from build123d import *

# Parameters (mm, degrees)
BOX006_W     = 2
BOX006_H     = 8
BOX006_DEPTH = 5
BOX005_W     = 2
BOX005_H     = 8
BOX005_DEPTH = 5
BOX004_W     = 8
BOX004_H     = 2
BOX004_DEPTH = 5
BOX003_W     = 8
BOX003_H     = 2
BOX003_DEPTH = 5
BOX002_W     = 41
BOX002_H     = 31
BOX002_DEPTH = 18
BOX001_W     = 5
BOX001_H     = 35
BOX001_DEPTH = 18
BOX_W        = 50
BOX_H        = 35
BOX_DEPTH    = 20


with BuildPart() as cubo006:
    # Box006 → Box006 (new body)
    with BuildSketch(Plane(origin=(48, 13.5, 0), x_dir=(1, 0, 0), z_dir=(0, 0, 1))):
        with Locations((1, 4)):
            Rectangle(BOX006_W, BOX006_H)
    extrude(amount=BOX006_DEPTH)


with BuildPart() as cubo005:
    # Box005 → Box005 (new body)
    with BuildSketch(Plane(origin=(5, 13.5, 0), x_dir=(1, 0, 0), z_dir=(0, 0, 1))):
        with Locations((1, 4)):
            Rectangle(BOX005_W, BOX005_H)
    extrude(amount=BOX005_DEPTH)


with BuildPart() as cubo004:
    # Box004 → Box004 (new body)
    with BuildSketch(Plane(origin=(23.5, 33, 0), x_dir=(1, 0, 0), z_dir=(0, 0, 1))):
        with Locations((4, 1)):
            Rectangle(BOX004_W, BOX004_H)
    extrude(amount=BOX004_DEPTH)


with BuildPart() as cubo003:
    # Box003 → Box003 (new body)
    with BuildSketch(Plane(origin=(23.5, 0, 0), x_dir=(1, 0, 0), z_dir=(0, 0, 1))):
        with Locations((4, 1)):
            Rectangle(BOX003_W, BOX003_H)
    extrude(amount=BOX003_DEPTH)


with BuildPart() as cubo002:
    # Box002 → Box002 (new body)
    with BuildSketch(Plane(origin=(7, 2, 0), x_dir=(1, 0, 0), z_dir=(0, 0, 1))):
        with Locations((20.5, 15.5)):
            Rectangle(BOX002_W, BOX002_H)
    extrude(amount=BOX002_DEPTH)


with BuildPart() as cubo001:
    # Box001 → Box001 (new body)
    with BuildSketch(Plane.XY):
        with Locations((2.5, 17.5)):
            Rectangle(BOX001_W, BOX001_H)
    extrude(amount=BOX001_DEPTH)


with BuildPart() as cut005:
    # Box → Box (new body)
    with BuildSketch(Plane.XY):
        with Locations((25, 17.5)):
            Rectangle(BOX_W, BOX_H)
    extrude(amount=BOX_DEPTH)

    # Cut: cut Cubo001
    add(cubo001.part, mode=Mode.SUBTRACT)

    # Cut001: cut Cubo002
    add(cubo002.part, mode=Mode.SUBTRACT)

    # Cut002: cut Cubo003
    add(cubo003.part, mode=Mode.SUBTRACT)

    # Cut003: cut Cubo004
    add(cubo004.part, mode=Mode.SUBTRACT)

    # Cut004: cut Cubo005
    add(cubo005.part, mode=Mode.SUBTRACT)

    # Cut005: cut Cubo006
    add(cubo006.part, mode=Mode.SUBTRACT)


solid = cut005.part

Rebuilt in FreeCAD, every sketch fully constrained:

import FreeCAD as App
import Part
import Sketcher
from FreeCAD import Vector
Q = App.Units.Quantity


def add_polygon(sketch, points):
    """Adds a closed chain of lines whose ends are joined by coincident constraints."""
    first, n = sketch.GeometryCount, len(points)
    for a, b in zip(points, points[1:] + points[:1]):
        sketch.addGeometry(Part.LineSegment(App.Vector(*a, 0), App.Vector(*b, 0)), False)
    for i in range(n):
        sketch.addConstraint(Sketcher.Constraint("Coincident", first + i, 2, first + (i + 1) % n, 1))

doc = App.newDocument("Part")
body = doc.addObject("PartDesign::Body", "Body")

# Sketch on XY plane
sketch1 = body.newObject("Sketcher::SketchObject", "Sketch")
sketch1.AttachmentSupport = (doc.getObject("XY_Plane"), [""])
sketch1.MapMode = "FlatFace"
add_polygon(sketch1, [(48, 21.5), (48, 13.5), (50, 13.5), (50, 21.5)])  # lines 0-3
sketch1.addConstraint(Sketcher.Constraint("Vertical", 0))
sketch1.addConstraint(Sketcher.Constraint("Horizontal", 1))
sketch1.addConstraint(Sketcher.Constraint("Vertical", 2))
sketch1.addConstraint(Sketcher.Constraint("Horizontal", 3))
sketch1.addConstraint(Sketcher.Constraint("DistanceX", 1, 1, 1, 2, Q("2 mm")))
sketch1.addConstraint(Sketcher.Constraint("DistanceY", 0, 2, 0, 1, Q("8 mm")))
sketch1.addConstraint(Sketcher.Constraint("DistanceX", -1, 1, 0, 2, Q("48 mm")))
sketch1.addConstraint(Sketcher.Constraint("DistanceY", -1, 1, 0, 2, Q("13.5 mm")))
pad1 = body.newObject("PartDesign::Pad", "Pad")
pad1.Profile = sketch1
pad1.Length = 5
body2 = doc.addObject("PartDesign::Body", "Body001")

# Sketch on XY plane
sketch2 = body2.newObject("Sketcher::SketchObject", "Sketch001")
sketch2.AttachmentSupport = (doc.getObject("XY_Plane001"), [""])
sketch2.MapMode = "FlatFace"
add_polygon(sketch2, [(5, 21.5), (5, 13.5), (7, 13.5), (7, 21.5)])  # lines 0-3
sketch2.addConstraint(Sketcher.Constraint("Vertical", 0))
sketch2.addConstraint(Sketcher.Constraint("Horizontal", 1))
sketch2.addConstraint(Sketcher.Constraint("Vertical", 2))
sketch2.addConstraint(Sketcher.Constraint("Horizontal", 3))
sketch2.addConstraint(Sketcher.Constraint("DistanceX", 1, 1, 1, 2, Q("2 mm")))
sketch2.addConstraint(Sketcher.Constraint("DistanceY", 0, 2, 0, 1, Q("8 mm")))
sketch2.addConstraint(Sketcher.Constraint("DistanceX", -1, 1, 0, 2, Q("5 mm")))
sketch2.addConstraint(Sketcher.Constraint("DistanceY", -1, 1, 0, 2, Q("13.5 mm")))
pad2 = body2.newObject("PartDesign::Pad", "Pad001")
pad2.Profile = sketch2
pad2.Length = 5
body3 = doc.addObject("PartDesign::Body", "Body002")

# Sketch on XY plane
sketch3 = body3.newObject("Sketcher::SketchObject", "Sketch002")
sketch3.AttachmentSupport = (doc.getObject("XY_Plane002"), [""])
sketch3.MapMode = "FlatFace"
add_polygon(sketch3, [(23.5, 35), (23.5, 33), (31.5, 33), (31.5, 35)])  # lines 0-3
sketch3.addConstraint(Sketcher.Constraint("Vertical", 0))
sketch3.addConstraint(Sketcher.Constraint("Horizontal", 1))
sketch3.addConstraint(Sketcher.Constraint("Vertical", 2))
sketch3.addConstraint(Sketcher.Constraint("Horizontal", 3))
sketch3.addConstraint(Sketcher.Constraint("DistanceX", 1, 1, 1, 2, Q("8 mm")))
sketch3.addConstraint(Sketcher.Constraint("DistanceY", 0, 2, 0, 1, Q("2 mm")))
sketch3.addConstraint(Sketcher.Constraint("DistanceY", -1, 1, 0, 2, Q("33 mm")))
sketch3.addConstraint(Sketcher.Constraint("DistanceX", -1, 1, 0, 2, Q("23.5 mm")))
pad3 = body3.newObject("PartDesign::Pad", "Pad002")
pad3.Profile = sketch3
pad3.Length = 5
body4 = doc.addObject("PartDesign::Body", "Body003")

# Sketch on XY plane
sketch4 = body4.newObject("Sketcher::SketchObject", "Sketch003")
sketch4.AttachmentSupport = (doc.getObject("XY_Plane003"), [""])
sketch4.MapMode = "FlatFace"
add_polygon(sketch4, [(23.5, 2), (23.5, 0), (31.5, 0), (31.5, 2)])  # lines 0-3
sketch4.addConstraint(Sketcher.Constraint("Vertical", 0))
sketch4.addConstraint(Sketcher.Constraint("Horizontal", 1))
sketch4.addConstraint(Sketcher.Constraint("Vertical", 2))
sketch4.addConstraint(Sketcher.Constraint("Horizontal", 3))
sketch4.addConstraint(Sketcher.Constraint("PointOnObject", 0, 2, -1))
sketch4.addConstraint(Sketcher.Constraint("DistanceX", 1, 1, 1, 2, Q("8 mm")))
sketch4.addConstraint(Sketcher.Constraint("DistanceY", 0, 2, 0, 1, Q("2 mm")))
sketch4.addConstraint(Sketcher.Constraint("DistanceX", -1, 1, 0, 2, Q("23.5 mm")))
pad4 = body4.newObject("PartDesign::Pad", "Pad003")
pad4.Profile = sketch4
pad4.Length = 5
body5 = doc.addObject("PartDesign::Body", "Body004")

# Sketch on XY plane
sketch5 = body5.newObject("Sketcher::SketchObject", "Sketch004")
sketch5.AttachmentSupport = (doc.getObject("XY_Plane004"), [""])
sketch5.MapMode = "FlatFace"
add_polygon(sketch5, [(7, 33), (7, 2), (48, 2), (48, 33)])  # lines 0-3
sketch5.addConstraint(Sketcher.Constraint("Vertical", 0))
sketch5.addConstraint(Sketcher.Constraint("Horizontal", 1))
sketch5.addConstraint(Sketcher.Constraint("Vertical", 2))
sketch5.addConstraint(Sketcher.Constraint("Horizontal", 3))
sketch5.addConstraint(Sketcher.Constraint("DistanceX", 1, 1, 1, 2, Q("41 mm")))
sketch5.addConstraint(Sketcher.Constraint("DistanceY", 0, 2, 0, 1, Q("31 mm")))
sketch5.addConstraint(Sketcher.Constraint("DistanceX", -1, 1, 0, 2, Q("7 mm")))
sketch5.addConstraint(Sketcher.Constraint("DistanceY", -1, 1, 0, 2, Q("2 mm")))
pad5 = body5.newObject("PartDesign::Pad", "Pad004")
pad5.Profile = sketch5
pad5.Length = 18
body6 = doc.addObject("PartDesign::Body", "Body005")

# Sketch on XY plane
sketch6 = body6.newObject("Sketcher::SketchObject", "Sketch005")
sketch6.AttachmentSupport = (doc.getObject("XY_Plane005"), [""])
sketch6.MapMode = "FlatFace"
add_polygon(sketch6, [(0, 35), (0, 0), (5, 0), (5, 35)])  # lines 0-3
sketch6.addConstraint(Sketcher.Constraint("Vertical", 0))
sketch6.addConstraint(Sketcher.Constraint("Horizontal", 1))
sketch6.addConstraint(Sketcher.Constraint("Vertical", 2))
sketch6.addConstraint(Sketcher.Constraint("Horizontal", 3))
sketch6.addConstraint(Sketcher.Constraint("Coincident", 0, 2, -1, 1))
sketch6.addConstraint(Sketcher.Constraint("DistanceX", 1, 1, 1, 2, Q("5 mm")))
sketch6.addConstraint(Sketcher.Constraint("DistanceY", 0, 2, 0, 1, Q("35 mm")))
pad6 = body6.newObject("PartDesign::Pad", "Pad005")
pad6.Profile = sketch6
pad6.Length = 18
body7 = doc.addObject("PartDesign::Body", "Body006")

# Sketch on XY plane
sketch7 = body7.newObject("Sketcher::SketchObject", "Sketch006")
sketch7.AttachmentSupport = (doc.getObject("XY_Plane006"), [""])
sketch7.MapMode = "FlatFace"
add_polygon(sketch7, [(0, 35), (0, 0), (50, 0), (50, 35)])  # lines 0-3
sketch7.addConstraint(Sketcher.Constraint("Vertical", 0))
sketch7.addConstraint(Sketcher.Constraint("Horizontal", 1))
sketch7.addConstraint(Sketcher.Constraint("Vertical", 2))
sketch7.addConstraint(Sketcher.Constraint("Horizontal", 3))
sketch7.addConstraint(Sketcher.Constraint("Coincident", 0, 2, -1, 1))
sketch7.addConstraint(Sketcher.Constraint("DistanceX", 1, 1, 1, 2, Q("50 mm")))
sketch7.addConstraint(Sketcher.Constraint("DistanceY", 0, 2, 0, 1, Q("35 mm")))
pad7 = body7.newObject("PartDesign::Pad", "Pad006")
pad7.Profile = sketch7
pad7.Length = 20
doc.recompute()

boolean = body7.newObject("PartDesign::Boolean", "Boolean")
boolean.Type = "Cut"
boolean.addObjects([body6])
doc.recompute()

boolean2 = body7.newObject("PartDesign::Boolean", "Boolean001")
boolean2.Type = "Cut"
boolean2.addObjects([body5])
doc.recompute()

boolean3 = body7.newObject("PartDesign::Boolean", "Boolean002")
boolean3.Type = "Cut"
boolean3.addObjects([body4])
doc.recompute()

boolean4 = body7.newObject("PartDesign::Boolean", "Boolean003")
boolean4.Type = "Cut"
boolean4.addObjects([body3])
doc.recompute()

boolean5 = body7.newObject("PartDesign::Boolean", "Boolean004")
boolean5.Type = "Cut"
boolean5.addObjects([body2])
doc.recompute()

boolean6 = body7.newObject("PartDesign::Boolean", "Boolean005")
boolean6.Type = "Cut"
boolean6.addObjects([body])

doc.recompute()
